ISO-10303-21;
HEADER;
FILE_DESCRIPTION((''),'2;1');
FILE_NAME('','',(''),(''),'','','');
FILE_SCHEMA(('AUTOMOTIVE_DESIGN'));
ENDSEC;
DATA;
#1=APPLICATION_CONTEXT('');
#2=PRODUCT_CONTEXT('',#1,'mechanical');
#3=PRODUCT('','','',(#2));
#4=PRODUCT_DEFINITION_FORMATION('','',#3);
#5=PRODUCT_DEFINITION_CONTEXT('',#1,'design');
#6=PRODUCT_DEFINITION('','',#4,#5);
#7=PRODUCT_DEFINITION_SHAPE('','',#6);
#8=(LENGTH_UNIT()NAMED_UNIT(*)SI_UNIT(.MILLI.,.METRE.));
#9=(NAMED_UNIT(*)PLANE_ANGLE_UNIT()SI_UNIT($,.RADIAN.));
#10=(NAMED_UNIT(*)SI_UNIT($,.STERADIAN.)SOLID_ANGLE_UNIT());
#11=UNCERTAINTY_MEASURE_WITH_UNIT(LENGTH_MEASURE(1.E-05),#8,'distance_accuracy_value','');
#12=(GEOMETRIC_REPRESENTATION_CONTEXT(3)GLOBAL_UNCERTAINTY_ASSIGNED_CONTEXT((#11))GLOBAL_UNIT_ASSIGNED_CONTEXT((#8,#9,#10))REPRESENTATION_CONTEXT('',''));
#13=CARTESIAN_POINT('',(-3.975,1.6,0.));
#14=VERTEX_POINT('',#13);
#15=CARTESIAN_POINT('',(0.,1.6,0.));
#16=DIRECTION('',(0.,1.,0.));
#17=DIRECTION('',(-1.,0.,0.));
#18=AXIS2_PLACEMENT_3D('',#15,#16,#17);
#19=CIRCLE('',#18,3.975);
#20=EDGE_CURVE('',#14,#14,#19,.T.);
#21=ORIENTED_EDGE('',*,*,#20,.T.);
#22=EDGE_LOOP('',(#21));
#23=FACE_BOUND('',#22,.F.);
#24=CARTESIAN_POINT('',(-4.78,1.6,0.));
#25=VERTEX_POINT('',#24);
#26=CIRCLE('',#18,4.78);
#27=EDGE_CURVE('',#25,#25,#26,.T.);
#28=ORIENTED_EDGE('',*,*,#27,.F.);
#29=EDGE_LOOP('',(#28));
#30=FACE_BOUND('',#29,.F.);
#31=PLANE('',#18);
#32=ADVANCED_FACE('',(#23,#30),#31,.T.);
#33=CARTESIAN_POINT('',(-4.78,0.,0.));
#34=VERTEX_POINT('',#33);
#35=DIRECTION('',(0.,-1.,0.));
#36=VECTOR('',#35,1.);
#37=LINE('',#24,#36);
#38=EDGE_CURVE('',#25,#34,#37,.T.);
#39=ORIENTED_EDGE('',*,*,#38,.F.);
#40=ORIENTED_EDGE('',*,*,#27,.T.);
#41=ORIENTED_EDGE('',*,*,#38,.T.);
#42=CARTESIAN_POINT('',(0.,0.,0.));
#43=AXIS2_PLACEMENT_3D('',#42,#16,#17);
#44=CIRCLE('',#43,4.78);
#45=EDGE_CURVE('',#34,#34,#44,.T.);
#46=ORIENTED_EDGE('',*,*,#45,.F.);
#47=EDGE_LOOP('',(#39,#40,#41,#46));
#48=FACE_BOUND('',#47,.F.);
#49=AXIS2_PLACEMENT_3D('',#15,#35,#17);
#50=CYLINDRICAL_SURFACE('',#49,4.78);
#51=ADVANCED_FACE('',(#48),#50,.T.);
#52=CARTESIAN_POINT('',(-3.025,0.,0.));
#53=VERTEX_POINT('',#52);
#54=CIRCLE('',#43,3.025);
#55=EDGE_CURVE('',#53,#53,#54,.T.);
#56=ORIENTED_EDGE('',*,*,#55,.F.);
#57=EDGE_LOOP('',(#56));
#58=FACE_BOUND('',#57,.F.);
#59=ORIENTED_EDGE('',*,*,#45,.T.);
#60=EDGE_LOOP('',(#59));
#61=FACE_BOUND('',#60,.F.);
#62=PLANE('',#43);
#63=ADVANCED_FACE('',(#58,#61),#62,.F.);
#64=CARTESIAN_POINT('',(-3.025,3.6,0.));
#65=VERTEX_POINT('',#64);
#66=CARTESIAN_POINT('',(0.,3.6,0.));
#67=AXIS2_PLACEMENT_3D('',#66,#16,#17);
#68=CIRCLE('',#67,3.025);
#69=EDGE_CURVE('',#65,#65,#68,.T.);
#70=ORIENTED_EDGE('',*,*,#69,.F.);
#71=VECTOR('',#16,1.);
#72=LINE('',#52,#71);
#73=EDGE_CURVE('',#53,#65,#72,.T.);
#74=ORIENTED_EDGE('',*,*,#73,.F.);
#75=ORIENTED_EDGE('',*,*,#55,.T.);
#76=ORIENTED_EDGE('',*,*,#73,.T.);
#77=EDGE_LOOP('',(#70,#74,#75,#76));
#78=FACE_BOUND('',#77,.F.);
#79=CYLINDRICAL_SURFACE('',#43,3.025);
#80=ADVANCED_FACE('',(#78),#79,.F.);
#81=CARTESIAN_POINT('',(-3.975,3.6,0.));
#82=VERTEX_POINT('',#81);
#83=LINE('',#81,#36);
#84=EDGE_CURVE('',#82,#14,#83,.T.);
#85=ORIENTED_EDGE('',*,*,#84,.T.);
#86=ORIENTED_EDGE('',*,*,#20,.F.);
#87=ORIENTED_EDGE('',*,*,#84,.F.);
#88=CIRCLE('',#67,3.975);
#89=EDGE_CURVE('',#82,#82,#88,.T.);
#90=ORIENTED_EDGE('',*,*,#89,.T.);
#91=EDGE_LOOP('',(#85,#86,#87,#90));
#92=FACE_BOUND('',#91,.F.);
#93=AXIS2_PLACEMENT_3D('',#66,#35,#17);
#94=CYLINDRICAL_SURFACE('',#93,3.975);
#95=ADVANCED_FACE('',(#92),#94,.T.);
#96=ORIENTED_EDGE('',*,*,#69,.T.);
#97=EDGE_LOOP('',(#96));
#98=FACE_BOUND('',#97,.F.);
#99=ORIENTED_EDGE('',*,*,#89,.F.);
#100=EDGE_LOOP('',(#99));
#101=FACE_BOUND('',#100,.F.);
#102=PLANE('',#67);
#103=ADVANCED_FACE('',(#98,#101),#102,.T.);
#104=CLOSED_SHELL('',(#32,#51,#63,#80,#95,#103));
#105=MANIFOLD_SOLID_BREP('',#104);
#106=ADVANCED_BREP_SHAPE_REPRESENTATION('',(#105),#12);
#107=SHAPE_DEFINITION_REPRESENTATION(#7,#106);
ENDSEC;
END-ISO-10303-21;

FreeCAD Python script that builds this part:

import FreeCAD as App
import Part
import Sketcher

doc = App.newDocument("Part")
body = doc.addObject("PartDesign::Body", "Body")

# Sketch on XY plane
sketch1 = body.newObject("Sketcher::SketchObject", "Sketch")
sketch1.AttachmentSupport = (doc.getObject("XY_Plane"), [""])
sketch1.MapMode = "FlatFace"
sketch1.addGeometry([
    Part.LineSegment(App.Vector(-3, 0, 0), App.Vector(-3, 3.6, 0)),  # 0
    Part.LineSegment(App.Vector(-3, 3.6, 0), App.Vector(-4, 3.6, 0)),  # 1
    Part.LineSegment(App.Vector(-4, 3.6, 0), App.Vector(-4, 1.6, 0)),  # 2
    Part.LineSegment(App.Vector(-4, 1.6, 0), App.Vector(-4.8, 1.6, 0)),  # 3
    Part.LineSegment(App.Vector(-4.8, 1.6, 0), App.Vector(-4.8, 0, 0)),  # 4
    Part.LineSegment(App.Vector(-4.8, 0, 0), App.Vector(-3, 0, 0)),  # 5
], False)
sketch1.addConstraint([
    Sketcher.Constraint("Coincident", 0, 2, 1, 1),
    Sketcher.Constraint("Coincident", 1, 2, 2, 1),
    Sketcher.Constraint("Coincident", 2, 2, 3, 1),
    Sketcher.Constraint("Coincident", 3, 2, 4, 1),
    Sketcher.Constraint("Coincident", 4, 2, 5, 1),
    Sketcher.Constraint("Coincident", 5, 2, 0, 1),
    Sketcher.Constraint("Vertical", 0),
    Sketcher.Constraint("Horizontal", 1),
    Sketcher.Constraint("Vertical", 2),
    Sketcher.Constraint("Horizontal", 3),
    Sketcher.Constraint("Vertical", 4),
    Sketcher.Constraint("Horizontal", 5),
    Sketcher.Constraint("PointOnObject", 4, 2, -1),
    Sketcher.Constraint("DistanceY", 2, 2, 2, 1, 2.0),
    Sketcher.Constraint("DistanceY", 0, 1, 0, 2, 3.6),
    Sketcher.Constraint("DistanceX", 1, 2, 1, 1, 0.95),
    Sketcher.Constraint("DistanceX", 3, 2, 3, 1, 0.805),
    Sketcher.Constraint("DistanceX", 3, 2, -1, 1, 4.78),
])
revolution = body.newObject("PartDesign::Revolution", "Revolution")
revolution.Profile = sketch1
revolution.ReferenceAxis = (sketch1, ["V_Axis"])
revolution.Angle = 360

doc.recompute()
